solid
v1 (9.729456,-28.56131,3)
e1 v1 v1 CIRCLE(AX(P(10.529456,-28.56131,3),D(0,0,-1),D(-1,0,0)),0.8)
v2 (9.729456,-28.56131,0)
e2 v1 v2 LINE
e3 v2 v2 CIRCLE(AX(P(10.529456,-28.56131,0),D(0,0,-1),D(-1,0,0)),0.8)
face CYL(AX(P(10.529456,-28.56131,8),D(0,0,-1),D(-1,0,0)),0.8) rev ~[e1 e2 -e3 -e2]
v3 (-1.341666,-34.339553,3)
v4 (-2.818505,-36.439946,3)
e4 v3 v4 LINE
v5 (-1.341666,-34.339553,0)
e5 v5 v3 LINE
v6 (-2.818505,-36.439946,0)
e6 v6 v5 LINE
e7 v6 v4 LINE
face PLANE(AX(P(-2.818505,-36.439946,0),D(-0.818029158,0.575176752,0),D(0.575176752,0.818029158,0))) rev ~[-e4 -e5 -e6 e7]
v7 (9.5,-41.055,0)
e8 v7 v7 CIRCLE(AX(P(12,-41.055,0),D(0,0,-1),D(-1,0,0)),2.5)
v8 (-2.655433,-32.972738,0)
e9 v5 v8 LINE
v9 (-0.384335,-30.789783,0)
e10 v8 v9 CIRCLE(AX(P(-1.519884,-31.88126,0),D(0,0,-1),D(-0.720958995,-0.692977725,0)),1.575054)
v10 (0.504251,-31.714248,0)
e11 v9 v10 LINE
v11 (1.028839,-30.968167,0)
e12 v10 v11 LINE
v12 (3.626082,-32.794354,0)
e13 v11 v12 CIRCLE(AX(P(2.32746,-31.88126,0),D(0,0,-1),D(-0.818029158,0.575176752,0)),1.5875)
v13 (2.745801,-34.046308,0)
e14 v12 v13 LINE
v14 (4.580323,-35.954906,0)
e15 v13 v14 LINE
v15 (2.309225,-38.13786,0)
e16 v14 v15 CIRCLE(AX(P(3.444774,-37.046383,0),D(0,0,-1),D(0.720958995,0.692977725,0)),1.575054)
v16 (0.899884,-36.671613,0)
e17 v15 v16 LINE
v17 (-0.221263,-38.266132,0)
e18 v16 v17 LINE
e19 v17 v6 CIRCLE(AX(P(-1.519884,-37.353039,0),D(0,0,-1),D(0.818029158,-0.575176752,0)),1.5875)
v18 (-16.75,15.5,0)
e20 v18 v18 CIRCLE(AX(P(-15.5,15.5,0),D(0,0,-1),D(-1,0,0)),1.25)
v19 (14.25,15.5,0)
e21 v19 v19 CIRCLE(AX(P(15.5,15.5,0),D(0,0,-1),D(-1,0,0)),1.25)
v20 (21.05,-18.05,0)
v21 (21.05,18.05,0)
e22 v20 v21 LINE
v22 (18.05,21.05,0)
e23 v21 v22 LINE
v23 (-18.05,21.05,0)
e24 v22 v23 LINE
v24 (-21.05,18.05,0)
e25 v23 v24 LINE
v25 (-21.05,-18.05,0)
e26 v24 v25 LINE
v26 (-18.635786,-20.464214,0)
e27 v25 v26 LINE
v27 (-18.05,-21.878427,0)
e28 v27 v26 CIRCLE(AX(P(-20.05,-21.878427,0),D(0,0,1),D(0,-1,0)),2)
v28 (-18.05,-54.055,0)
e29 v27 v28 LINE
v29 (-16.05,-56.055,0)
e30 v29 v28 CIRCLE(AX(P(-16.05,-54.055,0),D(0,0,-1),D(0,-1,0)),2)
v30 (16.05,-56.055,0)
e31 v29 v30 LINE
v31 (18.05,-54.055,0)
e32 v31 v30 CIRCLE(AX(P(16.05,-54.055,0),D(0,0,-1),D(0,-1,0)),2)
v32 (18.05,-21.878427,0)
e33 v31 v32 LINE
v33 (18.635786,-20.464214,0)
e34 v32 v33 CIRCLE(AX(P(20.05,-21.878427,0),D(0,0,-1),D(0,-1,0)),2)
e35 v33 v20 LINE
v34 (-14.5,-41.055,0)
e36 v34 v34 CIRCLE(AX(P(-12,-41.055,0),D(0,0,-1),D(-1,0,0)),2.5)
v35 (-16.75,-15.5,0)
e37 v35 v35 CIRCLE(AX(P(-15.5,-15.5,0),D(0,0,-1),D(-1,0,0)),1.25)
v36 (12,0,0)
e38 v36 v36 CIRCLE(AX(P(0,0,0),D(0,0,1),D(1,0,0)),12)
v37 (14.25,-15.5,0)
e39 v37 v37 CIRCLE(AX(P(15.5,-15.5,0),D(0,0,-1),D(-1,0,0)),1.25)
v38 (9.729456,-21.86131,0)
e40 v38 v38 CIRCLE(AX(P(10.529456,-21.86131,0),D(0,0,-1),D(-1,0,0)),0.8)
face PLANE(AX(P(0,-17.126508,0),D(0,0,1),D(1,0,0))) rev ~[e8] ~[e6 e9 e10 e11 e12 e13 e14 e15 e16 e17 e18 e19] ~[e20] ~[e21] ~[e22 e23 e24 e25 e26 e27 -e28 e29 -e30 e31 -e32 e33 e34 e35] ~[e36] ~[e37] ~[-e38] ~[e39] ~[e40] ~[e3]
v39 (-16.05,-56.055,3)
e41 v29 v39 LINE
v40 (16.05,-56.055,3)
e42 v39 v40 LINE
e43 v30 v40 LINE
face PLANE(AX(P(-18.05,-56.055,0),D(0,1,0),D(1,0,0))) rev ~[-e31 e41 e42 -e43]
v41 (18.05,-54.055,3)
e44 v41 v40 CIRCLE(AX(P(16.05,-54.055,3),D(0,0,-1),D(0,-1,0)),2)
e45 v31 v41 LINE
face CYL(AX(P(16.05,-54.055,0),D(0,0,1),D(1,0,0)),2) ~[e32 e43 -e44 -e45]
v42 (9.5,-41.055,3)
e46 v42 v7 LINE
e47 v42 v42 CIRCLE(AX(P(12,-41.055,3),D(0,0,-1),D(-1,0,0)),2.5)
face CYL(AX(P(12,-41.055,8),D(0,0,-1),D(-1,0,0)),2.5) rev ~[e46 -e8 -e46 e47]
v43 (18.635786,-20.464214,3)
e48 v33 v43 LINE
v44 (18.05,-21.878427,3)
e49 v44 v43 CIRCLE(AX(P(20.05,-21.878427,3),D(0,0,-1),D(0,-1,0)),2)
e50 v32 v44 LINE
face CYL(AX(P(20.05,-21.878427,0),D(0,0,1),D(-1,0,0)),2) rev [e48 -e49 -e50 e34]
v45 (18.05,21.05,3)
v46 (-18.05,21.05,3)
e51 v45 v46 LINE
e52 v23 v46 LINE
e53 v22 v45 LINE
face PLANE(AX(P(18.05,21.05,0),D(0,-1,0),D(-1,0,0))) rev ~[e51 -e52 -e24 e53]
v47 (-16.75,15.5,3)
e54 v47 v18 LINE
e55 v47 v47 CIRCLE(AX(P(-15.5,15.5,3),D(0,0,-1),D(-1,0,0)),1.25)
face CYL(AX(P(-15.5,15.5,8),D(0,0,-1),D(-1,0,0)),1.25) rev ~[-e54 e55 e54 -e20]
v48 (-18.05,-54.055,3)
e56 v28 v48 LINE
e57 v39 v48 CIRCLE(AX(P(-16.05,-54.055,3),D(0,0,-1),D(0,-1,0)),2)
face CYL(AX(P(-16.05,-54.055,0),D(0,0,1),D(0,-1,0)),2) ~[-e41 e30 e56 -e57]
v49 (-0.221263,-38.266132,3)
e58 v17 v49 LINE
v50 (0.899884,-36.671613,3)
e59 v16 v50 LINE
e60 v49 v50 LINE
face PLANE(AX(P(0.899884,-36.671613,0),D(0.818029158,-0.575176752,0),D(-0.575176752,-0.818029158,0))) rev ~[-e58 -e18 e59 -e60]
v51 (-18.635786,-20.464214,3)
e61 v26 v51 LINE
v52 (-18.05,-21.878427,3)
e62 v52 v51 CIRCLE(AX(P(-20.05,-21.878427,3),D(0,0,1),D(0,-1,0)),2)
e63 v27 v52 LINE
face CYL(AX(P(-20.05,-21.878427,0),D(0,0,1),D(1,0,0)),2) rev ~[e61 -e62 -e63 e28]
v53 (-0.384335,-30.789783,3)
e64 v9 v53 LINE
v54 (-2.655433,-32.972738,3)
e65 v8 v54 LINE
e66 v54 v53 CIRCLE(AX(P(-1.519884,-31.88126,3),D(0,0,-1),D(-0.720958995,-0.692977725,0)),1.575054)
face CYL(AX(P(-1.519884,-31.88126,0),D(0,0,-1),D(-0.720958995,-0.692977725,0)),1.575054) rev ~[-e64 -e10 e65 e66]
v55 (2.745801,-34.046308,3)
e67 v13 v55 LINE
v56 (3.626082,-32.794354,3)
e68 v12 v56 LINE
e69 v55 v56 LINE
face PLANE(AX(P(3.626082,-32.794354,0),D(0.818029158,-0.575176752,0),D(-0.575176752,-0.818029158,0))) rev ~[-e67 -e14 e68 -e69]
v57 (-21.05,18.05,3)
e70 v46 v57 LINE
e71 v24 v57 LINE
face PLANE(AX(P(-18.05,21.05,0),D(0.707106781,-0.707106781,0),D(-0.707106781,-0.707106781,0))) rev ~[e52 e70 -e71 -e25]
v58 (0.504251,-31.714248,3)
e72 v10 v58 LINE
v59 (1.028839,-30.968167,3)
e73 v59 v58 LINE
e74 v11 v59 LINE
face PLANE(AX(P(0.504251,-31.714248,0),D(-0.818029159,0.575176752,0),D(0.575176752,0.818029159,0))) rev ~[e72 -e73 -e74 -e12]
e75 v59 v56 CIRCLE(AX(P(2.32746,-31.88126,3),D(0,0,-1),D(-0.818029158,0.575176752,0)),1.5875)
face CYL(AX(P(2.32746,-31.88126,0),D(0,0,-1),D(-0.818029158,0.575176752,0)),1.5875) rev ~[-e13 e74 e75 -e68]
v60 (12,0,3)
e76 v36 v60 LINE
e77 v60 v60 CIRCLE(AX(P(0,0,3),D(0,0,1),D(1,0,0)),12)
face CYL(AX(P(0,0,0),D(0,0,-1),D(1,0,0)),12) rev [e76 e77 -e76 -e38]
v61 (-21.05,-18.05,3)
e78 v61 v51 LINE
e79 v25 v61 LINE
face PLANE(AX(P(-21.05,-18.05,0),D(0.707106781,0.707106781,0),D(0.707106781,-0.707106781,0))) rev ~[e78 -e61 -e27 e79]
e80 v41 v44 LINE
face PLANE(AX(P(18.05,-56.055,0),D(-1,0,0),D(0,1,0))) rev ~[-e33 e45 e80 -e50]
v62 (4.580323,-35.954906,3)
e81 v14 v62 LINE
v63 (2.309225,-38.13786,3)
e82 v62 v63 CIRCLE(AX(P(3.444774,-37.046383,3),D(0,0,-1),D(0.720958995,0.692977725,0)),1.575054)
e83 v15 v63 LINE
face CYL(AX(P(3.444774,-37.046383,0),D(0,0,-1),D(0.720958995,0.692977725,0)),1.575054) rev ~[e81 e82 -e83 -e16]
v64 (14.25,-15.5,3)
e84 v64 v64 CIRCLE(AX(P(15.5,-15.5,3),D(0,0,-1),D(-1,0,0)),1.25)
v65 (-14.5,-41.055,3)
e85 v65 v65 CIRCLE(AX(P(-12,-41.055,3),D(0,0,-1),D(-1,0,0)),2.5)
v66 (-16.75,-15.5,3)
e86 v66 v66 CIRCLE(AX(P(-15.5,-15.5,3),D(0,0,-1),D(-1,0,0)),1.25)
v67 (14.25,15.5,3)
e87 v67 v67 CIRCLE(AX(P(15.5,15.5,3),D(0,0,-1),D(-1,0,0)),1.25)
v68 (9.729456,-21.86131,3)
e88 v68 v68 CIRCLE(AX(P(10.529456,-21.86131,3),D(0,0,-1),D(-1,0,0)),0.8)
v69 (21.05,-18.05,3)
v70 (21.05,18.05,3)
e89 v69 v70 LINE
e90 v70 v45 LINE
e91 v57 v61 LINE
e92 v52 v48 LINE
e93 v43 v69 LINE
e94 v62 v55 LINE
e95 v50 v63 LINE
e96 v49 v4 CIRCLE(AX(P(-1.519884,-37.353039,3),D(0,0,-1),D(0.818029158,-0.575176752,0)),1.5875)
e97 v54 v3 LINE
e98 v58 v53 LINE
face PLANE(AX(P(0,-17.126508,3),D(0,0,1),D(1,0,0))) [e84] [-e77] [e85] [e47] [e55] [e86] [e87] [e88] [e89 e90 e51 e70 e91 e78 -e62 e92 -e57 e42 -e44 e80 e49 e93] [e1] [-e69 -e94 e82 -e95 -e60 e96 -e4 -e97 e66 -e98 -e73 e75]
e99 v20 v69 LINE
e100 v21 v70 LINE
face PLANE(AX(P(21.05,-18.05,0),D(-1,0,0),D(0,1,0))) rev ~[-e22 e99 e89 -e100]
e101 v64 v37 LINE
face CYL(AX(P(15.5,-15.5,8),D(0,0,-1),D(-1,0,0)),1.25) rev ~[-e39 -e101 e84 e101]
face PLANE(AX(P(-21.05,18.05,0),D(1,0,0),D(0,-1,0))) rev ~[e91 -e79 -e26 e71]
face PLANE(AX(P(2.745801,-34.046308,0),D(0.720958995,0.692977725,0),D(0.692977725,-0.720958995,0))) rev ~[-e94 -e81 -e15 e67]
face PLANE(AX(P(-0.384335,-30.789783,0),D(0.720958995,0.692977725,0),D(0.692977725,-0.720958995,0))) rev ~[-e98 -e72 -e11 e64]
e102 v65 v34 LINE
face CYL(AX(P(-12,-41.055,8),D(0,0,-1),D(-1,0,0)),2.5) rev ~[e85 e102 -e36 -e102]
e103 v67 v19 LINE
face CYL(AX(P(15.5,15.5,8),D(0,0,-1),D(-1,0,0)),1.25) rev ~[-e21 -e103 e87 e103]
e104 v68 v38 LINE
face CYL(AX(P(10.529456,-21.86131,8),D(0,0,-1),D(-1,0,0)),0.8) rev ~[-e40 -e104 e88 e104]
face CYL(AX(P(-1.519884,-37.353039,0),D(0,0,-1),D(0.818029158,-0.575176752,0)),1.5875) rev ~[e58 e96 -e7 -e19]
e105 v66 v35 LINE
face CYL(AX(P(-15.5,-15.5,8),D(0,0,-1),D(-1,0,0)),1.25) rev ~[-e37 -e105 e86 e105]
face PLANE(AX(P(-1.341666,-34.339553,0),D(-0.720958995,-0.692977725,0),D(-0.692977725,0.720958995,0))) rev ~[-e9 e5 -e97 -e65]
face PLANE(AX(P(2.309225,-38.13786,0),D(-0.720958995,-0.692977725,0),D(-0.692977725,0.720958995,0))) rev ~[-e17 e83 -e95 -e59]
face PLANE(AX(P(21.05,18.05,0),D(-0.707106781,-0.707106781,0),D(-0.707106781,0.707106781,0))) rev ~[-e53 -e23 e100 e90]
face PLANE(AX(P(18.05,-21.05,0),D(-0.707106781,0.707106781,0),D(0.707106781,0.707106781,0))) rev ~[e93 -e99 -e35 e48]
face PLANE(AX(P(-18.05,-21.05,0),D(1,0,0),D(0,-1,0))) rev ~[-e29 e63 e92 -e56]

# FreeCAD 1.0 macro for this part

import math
import FreeCAD as App
import Part
import Sketcher
Q = App.Units.Quantity


def edges_at(feature, points):
    """Names of the edges that pass closest to the given points."""
    edges = feature.Shape.Edges
    near = lambda p: min(range(len(edges)), key=lambda i: edges[i].distToShape(Part.Vertex(*p))[0])
    return sorted({f"Edge{near(p) + 1}" for p in points})


def add_polygon(sketch, points):
    """Adds a closed chain of lines whose ends are joined by coincident constraints."""
    first, n = sketch.GeometryCount, len(points)
    for a, b in zip(points, points[1:] + points[:1]):
        sketch.addGeometry(Part.LineSegment(App.Vector(*a, 0), App.Vector(*b, 0)), False)
    for i in range(n):
        sketch.addConstraint(Sketcher.Constraint("Coincident", first + i, 2, first + (i + 1) % n, 1))

doc = App.newDocument("Part")
body = doc.addObject("PartDesign::Body", "Body")

# Sketch on XY plane
sketch1 = body.newObject("Sketcher::SketchObject", "Sketch")
sketch1.AttachmentSupport = (doc.getObject("XY_Plane"), [""])
sketch1.MapMode = "FlatFace"
add_polygon(sketch1, [(18.05, -56.055), (18.05, -21.05), (21.05, -18.05), (21.05, 18.05), (18.05, 21.05), (-18.05, 21.05), (-21.05, 18.05), (-21.05, -18.05), (-18.05, -21.05), (-18.05, -56.055)])  # lines 0-9
sketch1.addGeometry(Part.Circle(App.Vector(0, 0, 0), App.Vector(0, 0, 1), 12), False)  # 10
sketch1.addConstraint([
    Sketcher.Constraint("Vertical", 0),
    Sketcher.Constraint("Vertical", 2),
    Sketcher.Constraint("Horizontal", 4),
    Sketcher.Constraint("Vertical", 6),
    Sketcher.Constraint("Vertical", 8),
    Sketcher.Constraint("Horizontal", 9),
    Sketcher.Constraint("Coincident", 10, 3, -1, 1),
    Sketcher.Constraint("Symmetric", 0, 2, 4, 2, -1, 1),
    Sketcher.Constraint("Symmetric", 1, 2, 5, 2, -1, 1),
    Sketcher.Constraint("Symmetric", 3, 2, 7, 2, -1, 1),
    Sketcher.Constraint("Perpendicular", 1, 3),
    Sketcher.Constraint("Perpendicular", 5, 7),
    Sketcher.Constraint("Horizontal", 2, 2, 5, 2),
    Sketcher.Constraint("Vertical", 0, 2, 3, 2),
    Sketcher.Constraint("Equal", 9, 2),
    Sketcher.Constraint("Diameter", 10, Q("24 mm")),
    Sketcher.Constraint("DistanceX", 4, 2, 4, 1, Q("36.1 mm")),
    Sketcher.Constraint("DistanceX", 0, 2, 1, 2, Q("3 mm")),
    Sketcher.Constraint("DistanceY", 0, 1, 0, 2, Q("35.005 mm")),
])
pad1 = body.newObject("PartDesign::Pad", "Pad")
pad1.Profile = sketch1
pad1.Length = 3

# Sketch on XY plane
sketch2 = body.newObject("Sketcher::SketchObject", "Sketch001")
sketch2.AttachmentSupport = (doc.getObject("XY_Plane"), [""])
sketch2.MapMode = "FlatFace"
sketch2.AttachmentOffset = App.Placement(App.Vector(0, 0, 3), App.Rotation())
sketch2.addGeometry([
    Part.Circle(App.Vector(-15.5, 15.5, 0), App.Vector(0, 0, 1), 1.25),
    Part.Circle(App.Vector(15.5, 15.5, 0), App.Vector(0, 0, 1), 1.25),
    Part.Circle(App.Vector(-15.5, -15.5, 0), App.Vector(0, 0, 1), 1.25),
    Part.Circle(App.Vector(15.5, -15.5, 0), App.Vector(0, 0, 1), 1.25),
], False)
sketch2.addConstraint([
    Sketcher.Constraint("Equal", 0, 1),
    Sketcher.Constraint("Equal", 1, 2),
    Sketcher.Constraint("Equal", 2, 3),
    Sketcher.Constraint("Symmetric", 1, 3, 2, 3, -1, 1),
    Sketcher.Constraint("Symmetric", 0, 3, 3, 3, -1, 1),
    Sketcher.Constraint("Symmetric", 0, 3, 1, 3, -2),
    Sketcher.Constraint("Diameter", 0, Q("2.5 mm")),
    Sketcher.Constraint("DistanceX", 0, 3, 1, 3, Q("31 mm")),
    Sketcher.Constraint("DistanceY", 2, 3, 0, 3, Q("31 mm")),
])
doc.recompute()
hole = body.newObject("PartDesign::Hole", "Hole")
hole.Profile = sketch2
hole.ThreadType = "None"
hole.Diameter = 2.5
hole.DepthType = "Dimension"
hole.Depth = 5
hole.DrillPoint = "Angled"
hole.DrillPointAngle = 118

# Sketch on XY plane
sketch3 = body.newObject("Sketcher::SketchObject", "Sketch002")
sketch3.AttachmentSupport = (doc.getObject("XY_Plane"), [""])
sketch3.MapMode = "FlatFace"
sketch3.AttachmentOffset = App.Placement(App.Vector(0, 0, 3), App.Rotation())
sketch3.addGeometry([
    Part.Circle(App.Vector(12, -41.055, 0), App.Vector(0, 0, 1), 2.5),
    Part.Circle(App.Vector(-12, -41.055, 0), App.Vector(0, 0, 1), 2.5),
], False)
sketch3.addConstraint([
    Sketcher.Constraint("Equal", 0, 1),
    Sketcher.Constraint("Symmetric", 0, 3, 1, 3, -2),
    Sketcher.Constraint("Diameter", 0, Q("5 mm")),
    Sketcher.Constraint("DistanceX", -1, 1, 0, 3, Q("12 mm")),
    Sketcher.Constraint("DistanceY", 0, 3, -1, 1, Q("41.055 mm")),
])
doc.recompute()
hole2 = body.newObject("PartDesign::Hole", "Hole001")
hole2.Profile = sketch3
hole2.ThreadType = "None"
hole2.Diameter = 5
hole2.DepthType = "Dimension"
hole2.Depth = 5
hole2.DrillPoint = "Angled"
hole2.DrillPointAngle = 118
doc.recompute()

fillet = body.newObject("PartDesign::Fillet", "Fillet")
fillet.Base = (hole2, edges_at(hole2, [
    (18.05, -21.05, 1.5),
    (18.05, -56.055, 1.5),
    (-18.05, -56.055, 1.5),
    (-18.05, -21.05, 1.5),
]))
fillet.Radius = 2

# Sketch on XY plane
sketch4 = body.newObject("Sketcher::SketchObject", "Sketch003")
sketch4.AttachmentSupport = (doc.getObject("XY_Plane"), [""])
sketch4.MapMode = "FlatFace"
sketch4.AttachmentOffset = App.Placement(App.Vector(0, 0, 3), App.Rotation())
sketch4.addGeometry([
    Part.Circle(App.Vector(10.529456, -21.86131, 0), App.Vector(0, 0, 1), 0.8),
    Part.Circle(App.Vector(10.529456, -28.56131, 0), App.Vector(0, 0, 1), 0.8),
], False)
sketch4.addConstraint([
    Sketcher.Constraint("Equal", 0, 1),
    Sketcher.Constraint("Vertical", 0, 3, 1, 3),
    Sketcher.Constraint("Diameter", 0, Q("1.6 mm")),
    Sketcher.Constraint("DistanceY", 1, 3, 0, 3, Q("6.7 mm")),
    Sketcher.Constraint("DistanceY", 0, 3, -1, 1, Q("21.86131 mm")),
    Sketcher.Constraint("DistanceX", -1, 1, 0, 3, Q("10.529456 mm")),
])
doc.recompute()
hole3 = body.newObject("PartDesign::Hole", "Hole002")
hole3.Profile = sketch4
hole3.ThreadType = "None"
hole3.Diameter = 1.6
hole3.DepthType = "Dimension"
hole3.Depth = 5
hole3.DrillPoint = "Angled"
hole3.DrillPointAngle = 118

# Sketch on XY plane
sketch5 = body.newObject("Sketcher::SketchObject", "Sketch004")
sketch5.AttachmentSupport = (doc.getObject("XY_Plane"), [""])
sketch5.MapMode = "FlatFace"
sketch5.addGeometry([
    Part.LineSegment(App.Vector(-0.221263, -38.266132, 0), App.Vector(0.899884, -36.671613, 0)),  # 0
    Part.LineSegment(App.Vector(0.899884, -36.671613, 0), App.Vector(2.309225, -38.13786, 0)),  # 1
    Part.ArcOfCircle(Part.Circle(App.Vector(3.444774, -37.046383, 0), App.Vector(0, 0, 1), 1.575054), math.radians(-136.133714), math.radians(43.866286)),  # 2
    Part.LineSegment(App.Vector(4.580323, -35.954906, 0), App.Vector(2.745801, -34.046308, 0)),  # 3
    Part.LineSegment(App.Vector(2.745801, -34.046308, 0), App.Vector(3.626082, -32.794354, 0)),  # 4
    Part.ArcOfCircle(Part.Circle(App.Vector(2.32746, -31.88126, 0), App.Vector(0, 0, 1), 1.5875), math.radians(-35.112011), math.radians(144.887989)),  # 5
    Part.LineSegment(App.Vector(1.028839, -30.968167, 0), App.Vector(0.504251, -31.714248, 0)),  # 6
    Part.LineSegment(App.Vector(0.504251, -31.714248, 0), App.Vector(-0.384335, -30.789783, 0)),  # 7
    Part.ArcOfCircle(Part.Circle(App.Vector(-1.519884, -31.88126, 0), App.Vector(0, 0, 1), 1.575054), math.radians(43.866286), math.radians(223.866286)),  # 8
    Part.LineSegment(App.Vector(-2.655433, -32.972738, 0), App.Vector(-1.341666, -34.339553, 0)),  # 9
    Part.LineSegment(App.Vector(-1.341666, -34.339553, 0), App.Vector(-2.818505, -36.439946, 0)),  # 10
    Part.ArcOfCircle(Part.Circle(App.Vector(-1.519884, -37.353039, 0), App.Vector(0, 0, 1), 1.5875), math.radians(144.887989), math.radians(324.887989)),  # 11
], False)
sketch5.addConstraint([
    Sketcher.Constraint("Coincident", 0, 2, 1, 1),
    Sketcher.Constraint("Tangent", 1, 2, 2, 1),
    Sketcher.Constraint("Tangent", 2, 2, 3, 1),
    Sketcher.Constraint("Coincident", 3, 2, 4, 1),
    Sketcher.Constraint("Tangent", 4, 2, 5, 1),
    Sketcher.Constraint("Tangent", 5, 2, 6, 1),
    Sketcher.Constraint("Coincident", 6, 2, 7, 1),
    Sketcher.Constraint("Tangent", 7, 2, 8, 1),
    Sketcher.Constraint("Tangent", 8, 2, 9, 1),
    Sketcher.Constraint("Coincident", 9, 2, 10, 1),
    Sketcher.Constraint("Tangent", 10, 2, 11, 1),
    Sketcher.Constraint("Tangent", 11, 2, 0, 1),
    Sketcher.Constraint("Equal", 2, 8),
    Sketcher.Constraint("Equal", 5, 11),
    Sketcher.Constraint("Parallel", 1, 3),
    Sketcher.Constraint("Parallel", 0, 4),
    Sketcher.Constraint("Parallel", 4, 6),
    Sketcher.Constraint("Parallel", 3, 7),
    Sketcher.Constraint("Parallel", 7, 9),
    Sketcher.Constraint("Parallel", 6, 10),
    Sketcher.Constraint("Horizontal", 5, 3, 8, 3),
    Sketcher.Constraint("Vertical", 8, 3, 11, 3),
    Sketcher.Constraint("Radius", 5, Q("1.5875 mm")),
    Sketcher.Constraint("Radius", 2, Q("1.575054 mm")),
    Sketcher.Constraint("DistanceX", -1, 1, 3, 2, Q("2.745801 mm")),
    Sketcher.Constraint("DistanceY", 1, 2, 5, 3, Q("6.2566 mm")),
    Sketcher.Constraint("DistanceX", 1, 2, 2, 2, Q("2.271099 mm")),
    Sketcher.Constraint("DistanceY", 11, 3, 8, 2, Q("4.380302 mm")),
    Sketcher.Constraint("Distance", 0, Q("1.949221 mm")),
    Sketcher.Constraint("Distance", 7, Q("1.282272 mm")),
    Sketcher.Constraint("Distance", 9, Q("1.895829 mm")),
    Sketcher.Constraint("DistanceY", 5, 3, -1, 1, Q("31.88126 mm")),
])
pocket1 = body.newObject("PartDesign::Pocket", "Pocket")
pocket1.Profile = sketch5
pocket1.Length = 10
pocket1.Reversed = True

doc.recompute()
